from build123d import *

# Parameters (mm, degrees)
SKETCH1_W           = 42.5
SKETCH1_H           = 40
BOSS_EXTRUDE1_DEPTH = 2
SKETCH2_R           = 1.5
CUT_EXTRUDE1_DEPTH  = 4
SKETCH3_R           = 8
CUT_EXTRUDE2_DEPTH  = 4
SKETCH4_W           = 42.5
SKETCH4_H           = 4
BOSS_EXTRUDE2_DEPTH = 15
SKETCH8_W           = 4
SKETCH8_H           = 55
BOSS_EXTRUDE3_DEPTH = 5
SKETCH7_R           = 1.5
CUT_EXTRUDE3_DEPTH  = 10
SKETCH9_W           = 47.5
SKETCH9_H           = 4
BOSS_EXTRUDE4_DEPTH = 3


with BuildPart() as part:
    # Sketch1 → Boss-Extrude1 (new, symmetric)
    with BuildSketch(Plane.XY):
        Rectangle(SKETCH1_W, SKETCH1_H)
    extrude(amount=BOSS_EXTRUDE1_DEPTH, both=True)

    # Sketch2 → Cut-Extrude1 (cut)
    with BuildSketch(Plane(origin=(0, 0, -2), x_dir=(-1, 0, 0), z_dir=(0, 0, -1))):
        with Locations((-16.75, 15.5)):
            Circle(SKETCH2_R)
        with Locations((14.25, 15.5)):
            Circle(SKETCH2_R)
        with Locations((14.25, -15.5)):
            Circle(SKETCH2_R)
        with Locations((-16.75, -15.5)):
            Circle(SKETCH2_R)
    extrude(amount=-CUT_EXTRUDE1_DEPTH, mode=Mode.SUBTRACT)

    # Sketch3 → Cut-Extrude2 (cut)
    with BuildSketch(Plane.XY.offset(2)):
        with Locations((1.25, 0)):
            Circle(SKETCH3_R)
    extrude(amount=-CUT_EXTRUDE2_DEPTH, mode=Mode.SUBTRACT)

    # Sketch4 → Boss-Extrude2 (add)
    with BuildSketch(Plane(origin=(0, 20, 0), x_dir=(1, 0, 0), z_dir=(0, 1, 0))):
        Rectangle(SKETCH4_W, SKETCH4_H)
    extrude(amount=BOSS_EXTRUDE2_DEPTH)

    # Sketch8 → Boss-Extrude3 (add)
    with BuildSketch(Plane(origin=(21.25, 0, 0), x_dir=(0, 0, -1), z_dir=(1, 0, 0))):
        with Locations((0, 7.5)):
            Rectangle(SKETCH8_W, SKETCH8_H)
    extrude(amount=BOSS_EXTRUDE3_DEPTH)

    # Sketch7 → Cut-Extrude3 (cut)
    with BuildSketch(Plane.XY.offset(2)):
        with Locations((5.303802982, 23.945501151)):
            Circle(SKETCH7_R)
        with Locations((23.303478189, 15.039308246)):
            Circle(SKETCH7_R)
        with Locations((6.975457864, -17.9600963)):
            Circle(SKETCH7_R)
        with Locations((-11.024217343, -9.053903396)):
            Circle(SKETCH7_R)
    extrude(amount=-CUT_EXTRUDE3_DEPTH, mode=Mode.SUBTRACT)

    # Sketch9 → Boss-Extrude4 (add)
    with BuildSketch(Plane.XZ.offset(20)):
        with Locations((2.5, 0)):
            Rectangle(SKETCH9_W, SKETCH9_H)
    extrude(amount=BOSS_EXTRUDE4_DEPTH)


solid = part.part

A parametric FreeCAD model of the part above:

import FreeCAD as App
import Part
import Sketcher

V = App.Vector
Q = App.Units.Quantity

doc = App.newDocument("Part")
params = doc.addObject("Spreadsheet::Sheet", "Params")
for row, (alias, value) in enumerate([
    ("sketch1_height", "40 mm"),
    ("sketch1_width", "42.5 mm"),
    ("pad1_length", "4 mm"),
    ("sketch2_diameter", "3 mm"),
    ("pocket1_length", "4 mm"),
    ("sketch3_diameter", "16 mm"),
    ("pocket2_length", "4 mm"),
    ("sketch4_height", "4 mm"),
    ("sketch4_width", "42.5 mm"),
    ("pad2_length", "15 mm"),
    ("sketch5_width", "55 mm"),
    ("sketch5_height", "4 mm"),
    ("pad3_length", "5 mm"),
    ("sketch6_diameter", "3 mm"),
    ("pocket3_length", "10 mm"),
    ("sketch7_height", "4 mm"),
    ("sketch7_width", "47.5 mm"),
    ("pad4_length", "3 mm"),
], start=1):
    params.set(f"A{row}", alias)
    params.set(f"B{row}", "=" + value)
    params.setAlias(f"B{row}", alias)

body = doc.addObject("PartDesign::Body", "Body")

sketch1 = doc.addObject("Sketcher::SketchObject", "Sketch")
body.addObject(sketch1)
sketch1.AttachmentSupport = (doc.XY_Plane, [""])
sketch1.MapMode = "FlatFace"
sketch1.addGeometry(Part.LineSegment(V(-21.25, 20, 0), V(-21.25, -20, 0)), False)
sketch1.addGeometry(Part.LineSegment(V(-21.25, -20, 0), V(21.25, -20, 0)), False)
sketch1.addGeometry(Part.LineSegment(V(21.25, -20, 0), V(21.25, 20, 0)), False)
sketch1.addGeometry(Part.LineSegment(V(21.25, 20, 0), V(-21.25, 20, 0)), False)
sketch1.addConstraint(Sketcher.Constraint("Coincident", 0, 2, 1, 1))
sketch1.addConstraint(Sketcher.Constraint("Coincident", 1, 2, 2, 1))
sketch1.addConstraint(Sketcher.Constraint("Coincident", 2, 2, 3, 1))
sketch1.addConstraint(Sketcher.Constraint("Coincident", 3, 2, 0, 1))
sketch1.addConstraint(Sketcher.Constraint("Vertical", 0))
sketch1.addConstraint(Sketcher.Constraint("Horizontal", 1))
sketch1.addConstraint(Sketcher.Constraint("Vertical", 2))
sketch1.addConstraint(Sketcher.Constraint("Horizontal", 3))
sketch1.addConstraint(Sketcher.Constraint("Symmetric", 0, 2, 2, 2, -1, 1))
sketch1.addConstraint(Sketcher.Constraint("DistanceY", 0, 2, 0, 1, Q("40 mm")))
sketch1.addConstraint(Sketcher.Constraint("DistanceX", 1, 1, 1, 2, Q("42.5 mm")))
sketch1.setExpression("Constraints[9]", "Params.sketch1_height")
sketch1.setExpression("Constraints[10]", "Params.sketch1_width")
pad1 = doc.addObject("PartDesign::Pad", "Pad")
body.addObject(pad1)
pad1.Profile = sketch1
pad1.setExpression("Length", "Params.pad1_length")
pad1.Midplane = True

sketch2 = doc.addObject("Sketcher::SketchObject", "Sketch001")
body.addObject(sketch2)
sketch2.AttachmentSupport = (doc.XY_Plane, [""])
sketch2.MapMode = "FlatFace"
sketch2.AttachmentOffset = App.Placement(V(0, 0, -2), App.Rotation())
sketch2.addGeometry(Part.Circle(V(16.75, 15.5, 0), V(0, 0, 1), 1.5), False)
sketch2.addGeometry(Part.Circle(V(-14.25, 15.5, 0), V(0, 0, 1), 1.5), False)
sketch2.addGeometry(Part.Circle(V(-14.25, -15.5, 0), V(0, 0, 1), 1.5), False)
sketch2.addGeometry(Part.Circle(V(16.75, -15.5, 0), V(0, 0, 1), 1.5), False)
sketch2.addConstraint(Sketcher.Constraint("Equal", 0, 1))
sketch2.addConstraint(Sketcher.Constraint("Equal", 1, 2))
sketch2.addConstraint(Sketcher.Constraint("Equal", 2, 3))
sketch2.addConstraint(Sketcher.Constraint("Symmetric", 1, 3, 2, 3, -1))
sketch2.addConstraint(Sketcher.Constraint("Symmetric", 0, 3, 3, 3, -1))
sketch2.addConstraint(Sketcher.Constraint("Horizontal", 0, 3, 1, 3))
sketch2.addConstraint(Sketcher.Constraint("Diameter", 0, Q("3 mm")))
sketch2.addConstraint(Sketcher.Constraint("DistanceX", 1, 3, 0, 3, Q("31 mm")))
sketch2.addConstraint(Sketcher.Constraint("DistanceY", 2, 3, 1, 3, Q("31 mm")))
sketch2.addConstraint(Sketcher.Constraint("DistanceX", -1, 1, 0, 3, Q("16.75 mm")))
sketch2.setExpression("Constraints[6]", "Params.sketch2_diameter")
pocket1 = doc.addObject("PartDesign::Pocket", "Pocket")
body.addObject(pocket1)
pocket1.Profile = sketch2
pocket1.setExpression("Length", "Params.pocket1_length")
pocket1.Reversed = True

sketch3 = doc.addObject("Sketcher::SketchObject", "Sketch002")
body.addObject(sketch3)
sketch3.AttachmentSupport = (doc.XY_Plane, [""])
sketch3.MapMode = "FlatFace"
sketch3.AttachmentOffset = App.Placement(V(0, 0, 2), App.Rotation())
sketch3.addGeometry(Part.Circle(V(1.25, 0, 0), V(0, 0, 1), 8), False)
sketch3.addConstraint(Sketcher.Constraint("PointOnObject", 0, 3, -1))
sketch3.addConstraint(Sketcher.Constraint("Diameter", 0, Q("16 mm")))
sketch3.addConstraint(Sketcher.Constraint("DistanceX", -1, 1, 0, 3, Q("1.25 mm")))
sketch3.setExpression("Constraints[1]", "Params.sketch3_diameter")
pocket2 = doc.addObject("PartDesign::Pocket", "Pocket001")
body.addObject(pocket2)
pocket2.Profile = sketch3
pocket2.setExpression("Length", "Params.pocket2_length")

sketch4 = doc.addObject("Sketcher::SketchObject", "Sketch003")
body.addObject(sketch4)
sketch4.AttachmentSupport = (doc.XZ_Plane, [""])
sketch4.MapMode = "FlatFace"
sketch4.AttachmentOffset = App.Placement(V(0, 0, -20), App.Rotation())
sketch4.addGeometry(Part.LineSegment(V(-21.25, -2, 0), V(-21.25, 2, 0)), False)
sketch4.addGeometry(Part.LineSegment(V(-21.25, 2, 0), V(21.25, 2, 0)), False)
sketch4.addGeometry(Part.LineSegment(V(21.25, 2, 0), V(21.25, -2, 0)), False)
sketch4.addGeometry(Part.LineSegment(V(21.25, -2, 0), V(-21.25, -2, 0)), False)
sketch4.addConstraint(Sketcher.Constraint("Coincident", 0, 2, 1, 1))
sketch4.addConstraint(Sketcher.Constraint("Coincident", 1, 2, 2, 1))
sketch4.addConstraint(Sketcher.Constraint("Coincident", 2, 2, 3, 1))
sketch4.addConstraint(Sketcher.Constraint("Coincident", 3, 2, 0, 1))
sketch4.addConstraint(Sketcher.Constraint("Vertical", 0))
sketch4.addConstraint(Sketcher.Constraint("Horizontal", 1))
sketch4.addConstraint(Sketcher.Constraint("Vertical", 2))
sketch4.addConstraint(Sketcher.Constraint("Horizontal", 3))
sketch4.addConstraint(Sketcher.Constraint("Symmetric", 0, 2, 2, 2, -1, 1))
sketch4.addConstraint(Sketcher.Constraint("DistanceY", 0, 1, 0, 2, Q("4 mm")))
sketch4.addConstraint(Sketcher.Constraint("DistanceX", 1, 1, 1, 2, Q("42.5 mm")))
sketch4.setExpression("Constraints[9]", "Params.sketch4_height")
sketch4.setExpression("Constraints[10]", "Params.sketch4_width")
pad2 = doc.addObject("PartDesign::Pad", "Pad001")
body.addObject(pad2)
pad2.Profile = sketch4
pad2.setExpression("Length", "Params.pad2_length")
pad2.Reversed = True

sketch5 = doc.addObject("Sketcher::SketchObject", "Sketch004")
body.addObject(sketch5)
sketch5.AttachmentSupport = (doc.YZ_Plane, [""])
sketch5.MapMode = "FlatFace"
sketch5.AttachmentOffset = App.Placement(V(0, 0, 21.25), App.Rotation())
sketch5.addGeometry(Part.LineSegment(V(35, 2, 0), V(-20, 2, 0)), False)
sketch5.addGeometry(Part.LineSegment(V(-20, 2, 0), V(-20, -2, 0)), False)
sketch5.addGeometry(Part.LineSegment(V(-20, -2, 0), V(35, -2, 0)), False)
sketch5.addGeometry(Part.LineSegment(V(35, -2, 0), V(35, 2, 0)), False)
sketch5.addConstraint(Sketcher.Constraint("Coincident", 0, 2, 1, 1))
sketch5.addConstraint(Sketcher.Constraint("Coincident", 1, 2, 2, 1))
sketch5.addConstraint(Sketcher.Constraint("Coincident", 2, 2, 3, 1))
sketch5.addConstraint(Sketcher.Constraint("Coincident", 3, 2, 0, 1))
sketch5.addConstraint(Sketcher.Constraint("Horizontal", 0))
sketch5.addConstraint(Sketcher.Constraint("Vertical", 1))
sketch5.addConstraint(Sketcher.Constraint("Horizontal", 2))
sketch5.addConstraint(Sketcher.Constraint("Vertical", 3))
sketch5.addConstraint(Sketcher.Constraint("DistanceX", 0, 2, 0, 1, Q("55 mm")))
sketch5.addConstraint(Sketcher.Constraint("DistanceY", 1, 2, 1, 1, Q("4 mm")))
sketch5.addConstraint(Sketcher.Constraint("DistanceX", 0, 2, -1, 1, Q("20 mm")))
sketch5.addConstraint(Sketcher.Constraint("DistanceY", -1, 1, 0, 2, Q("2 mm")))
sketch5.setExpression("Constraints[8]", "Params.sketch5_width")
sketch5.setExpression("Constraints[9]", "Params.sketch5_height")
pad3 = doc.addObject("PartDesign::Pad", "Pad002")
body.addObject(pad3)
pad3.Profile = sketch5
pad3.setExpression("Length", "Params.pad3_length")

sketch6 = doc.addObject("Sketcher::SketchObject", "Sketch005")
body.addObject(sketch6)
sketch6.AttachmentSupport = (doc.XY_Plane, [""])
sketch6.MapMode = "FlatFace"
sketch6.AttachmentOffset = App.Placement(V(0, 0, 2), App.Rotation())
sketch6.addGeometry(Part.Circle(V(5.303803, 23.945501, 0), V(0, 0, 1), 1.5), False)
sketch6.addGeometry(Part.Circle(V(23.303478, 15.039308, 0), V(0, 0, 1), 1.5), False)
sketch6.addGeometry(Part.Circle(V(6.975458, -17.960096, 0), V(0, 0, 1), 1.5), False)
sketch6.addGeometry(Part.Circle(V(-11.024217, -9.053903, 0), V(0, 0, 1), 1.5), False)
sketch6.addConstraint(Sketcher.Constraint("Equal", 0, 1))
sketch6.addConstraint(Sketcher.Constraint("Equal", 1, 2))
sketch6.addConstraint(Sketcher.Constraint("Equal", 2, 3))
sketch6.addConstraint(Sketcher.Constraint("Diameter", 0, Q("3 mm")))
sketch6.addConstraint(Sketcher.Constraint("DistanceY", -1, 1, 0, 3, Q("23.945501 mm")))
sketch6.addConstraint(Sketcher.Constraint("DistanceX", -1, 1, 1, 3, Q("23.303478 mm")))
sketch6.addConstraint(Sketcher.Constraint("DistanceY", -1, 1, 1, 3, Q("15.039308 mm")))
sketch6.addConstraint(Sketcher.Constraint("DistanceX", 2, 3, 1, 3, Q("16.32802 mm")))
sketch6.addConstraint(Sketcher.Constraint("DistanceX", 3, 3, 0, 3, Q("16.32802 mm")))
sketch6.addConstraint(Sketcher.Constraint("DistanceY", 3, 3, 1, 3, Q("24.093212 mm")))
sketch6.addConstraint(Sketcher.Constraint("DistanceX", -1, 1, 0, 3, Q("5.303803 mm")))
sketch6.addConstraint(Sketcher.Constraint("DistanceY", 2, 3, -1, 1, Q("17.960096 mm")))
sketch6.setExpression("Constraints[3]", "Params.sketch6_diameter")
pocket3 = doc.addObject("PartDesign::Pocket", "Pocket002")
body.addObject(pocket3)
pocket3.Profile = sketch6
pocket3.setExpression("Length", "Params.pocket3_length")

sketch7 = doc.addObject("Sketcher::SketchObject", "Sketch006")
body.addObject(sketch7)
sketch7.AttachmentSupport = (doc.XZ_Plane, [""])
sketch7.MapMode = "FlatFace"
sketch7.AttachmentOffset = App.Placement(V(0, 0, 20), App.Rotation())
sketch7.addGeometry(Part.LineSegment(V(-21.25, 2, 0), V(-21.25, -2, 0)), False)
sketch7.addGeometry(Part.LineSegment(V(-21.25, -2, 0), V(26.25, -2, 0)), False)
sketch7.addGeometry(Part.LineSegment(V(26.25, -2, 0), V(26.25, 2, 0)), False)
sketch7.addGeometry(Part.LineSegment(V(26.25, 2, 0), V(-21.25, 2, 0)), False)
sketch7.addConstraint(Sketcher.Constraint("Coincident", 0, 2, 1, 1))
sketch7.addConstraint(Sketcher.Constraint("Coincident", 1, 2, 2, 1))
sketch7.addConstraint(Sketcher.Constraint("Coincident", 2, 2, 3, 1))
sketch7.addConstraint(Sketcher.Constraint("Coincident", 3, 2, 0, 1))
sketch7.addConstraint(Sketcher.Constraint("Vertical", 0))
sketch7.addConstraint(Sketcher.Constraint("Horizontal", 1))
sketch7.addConstraint(Sketcher.Constraint("Vertical", 2))
sketch7.addConstraint(Sketcher.Constraint("Horizontal", 3))
sketch7.addConstraint(Sketcher.Constraint("DistanceY", 0, 2, 0, 1, Q("4 mm")))
sketch7.addConstraint(Sketcher.Constraint("DistanceX", 1, 1, 1, 2, Q("47.5 mm")))
sketch7.addConstraint(Sketcher.Constraint("DistanceY", 0, 2, -1, 1, Q("2 mm")))
sketch7.addConstraint(Sketcher.Constraint("DistanceX", 0, 2, -1, 1, Q("21.25 mm")))
sketch7.setExpression("Constraints[8]", "Params.sketch7_height")
sketch7.setExpression("Constraints[9]", "Params.sketch7_width")
pad4 = doc.addObject("PartDesign::Pad", "Pad003")
body.addObject(pad4)
pad4.Profile = sketch7
pad4.setExpression("Length", "Params.pad4_length")

doc.recompute()
